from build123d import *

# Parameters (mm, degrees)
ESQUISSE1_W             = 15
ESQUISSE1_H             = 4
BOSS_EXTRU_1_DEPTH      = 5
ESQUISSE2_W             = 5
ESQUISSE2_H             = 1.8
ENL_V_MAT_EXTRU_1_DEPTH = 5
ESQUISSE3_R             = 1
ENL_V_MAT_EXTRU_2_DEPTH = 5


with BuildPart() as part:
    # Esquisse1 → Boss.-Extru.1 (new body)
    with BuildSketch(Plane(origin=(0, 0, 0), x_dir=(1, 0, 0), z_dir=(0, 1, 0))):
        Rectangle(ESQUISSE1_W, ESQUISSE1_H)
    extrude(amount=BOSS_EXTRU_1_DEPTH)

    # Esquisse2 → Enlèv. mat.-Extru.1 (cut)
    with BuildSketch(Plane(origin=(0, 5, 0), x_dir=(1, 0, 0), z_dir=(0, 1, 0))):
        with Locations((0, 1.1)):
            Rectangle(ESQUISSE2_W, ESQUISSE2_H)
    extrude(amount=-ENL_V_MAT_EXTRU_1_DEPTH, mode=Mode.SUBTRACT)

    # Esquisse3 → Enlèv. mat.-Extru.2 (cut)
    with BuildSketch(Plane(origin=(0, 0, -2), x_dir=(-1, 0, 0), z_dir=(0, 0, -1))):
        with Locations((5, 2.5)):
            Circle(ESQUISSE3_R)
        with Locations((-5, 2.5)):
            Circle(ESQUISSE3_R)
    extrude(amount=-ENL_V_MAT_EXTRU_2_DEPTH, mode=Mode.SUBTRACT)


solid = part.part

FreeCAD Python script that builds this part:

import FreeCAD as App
import Part
import Sketcher

V = App.Vector

doc = App.newDocument("Part")
body = doc.addObject("PartDesign::Body", "Body")

# Sketch on XZ plane
sketch1 = body.newObject("Sketcher::SketchObject", "Sketch")
sketch1.AttachmentSupport = (doc.getObject("XZ_Plane"), [""])
sketch1.MapMode = "FlatFace"
sketch1.addGeometry(Part.LineSegment(V(-7.5, -2, 0), V(-7.5, 2, 0)), False)
sketch1.addGeometry(Part.LineSegment(V(-7.5, 2, 0), V(7.5, 2, 0)), False)
sketch1.addGeometry(Part.LineSegment(V(7.5, 2, 0), V(7.5, -2, 0)), False)
sketch1.addGeometry(Part.LineSegment(V(7.5, -2, 0), V(-7.5, -2, 0)), False)
sketch1.addConstraint(Sketcher.Constraint("Coincident", 0, 2, 1, 1))
sketch1.addConstraint(Sketcher.Constraint("Coincident", 1, 2, 2, 1))
sketch1.addConstraint(Sketcher.Constraint("Coincident", 2, 2, 3, 1))
sketch1.addConstraint(Sketcher.Constraint("Coincident", 3, 2, 0, 1))
sketch1.addConstraint(Sketcher.Constraint("Vertical", 0))
sketch1.addConstraint(Sketcher.Constraint("Horizontal", 1))
sketch1.addConstraint(Sketcher.Constraint("Vertical", 2))
sketch1.addConstraint(Sketcher.Constraint("Horizontal", 3))
sketch1.addConstraint(Sketcher.Constraint("Symmetric", 0, 2, 2, 2, -1, 1))
sketch1.addConstraint(Sketcher.Constraint("DistanceX", 1, 1, 1, 2, 15.0))
sketch1.addConstraint(Sketcher.Constraint("DistanceY", 0, 1, 0, 2, 4.0))
pad1 = body.newObject("PartDesign::Pad", "Pad")
pad1.Profile = sketch1
pad1.Length = 5
pad1.Reversed = True

# Sketch on XZ plane
sketch2 = body.newObject("Sketcher::SketchObject", "Sketch001")
sketch2.AttachmentSupport = (doc.getObject("XZ_Plane"), [""])
sketch2.MapMode = "FlatFace"
sketch2.AttachmentOffset = App.Placement(V(0, 0, -5), App.Rotation())
sketch2.addGeometry(Part.LineSegment(V(-2.5, -2, 0), V(-2.5, -0.2, 0)), False)
sketch2.addGeometry(Part.LineSegment(V(-2.5, -0.2, 0), V(2.5, -0.2, 0)), False)
sketch2.addGeometry(Part.LineSegment(V(2.5, -0.2, 0), V(2.5, -2, 0)), False)
sketch2.addGeometry(Part.LineSegment(V(2.5, -2, 0), V(-2.5, -2, 0)), False)
sketch2.addConstraint(Sketcher.Constraint("Coincident", 0, 2, 1, 1))
sketch2.addConstraint(Sketcher.Constraint("Coincident", 1, 2, 2, 1))
sketch2.addConstraint(Sketcher.Constraint("Coincident", 2, 2, 3, 1))
sketch2.addConstraint(Sketcher.Constraint("Coincident", 3, 2, 0, 1))
sketch2.addConstraint(Sketcher.Constraint("Vertical", 0))
sketch2.addConstraint(Sketcher.Constraint("Horizontal", 1))
sketch2.addConstraint(Sketcher.Constraint("Vertical", 2))
sketch2.addConstraint(Sketcher.Constraint("Horizontal", 3))
sketch2.addConstraint(Sketcher.Constraint("DistanceX", 1, 1, 1, 2, 5.0))
sketch2.addConstraint(Sketcher.Constraint("DistanceY", 0, 1, 0, 2, 1.8))
sketch2.addConstraint(Sketcher.Constraint("DistanceY", 2, 2, -1, 1, 2.0))
sketch2.addConstraint(Sketcher.Constraint("DistanceX", 0, 2, -1, 1, 2.5))
pocket1 = body.newObject("PartDesign::Pocket", "Pocket")
pocket1.Profile = sketch2
pocket1.Length = 5
pocket1.Reversed = True

# Sketch on XY plane
sketch3 = body.newObject("Sketcher::SketchObject", "Sketch002")
sketch3.AttachmentSupport = (doc.getObject("XY_Plane"), [""])
sketch3.MapMode = "FlatFace"
sketch3.AttachmentOffset = App.Placement(V(0, 0, -2), App.Rotation())
sketch3.addGeometry(Part.Circle(V(-5, 2.5, 0), V(0, 0, 1), 1), False)
sketch3.addGeometry(Part.Circle(V(5, 2.5, 0), V(0, 0, 1), 1), False)
sketch3.addConstraint(Sketcher.Constraint("Equal", 0, 1))
sketch3.addConstraint(Sketcher.Constraint("Symmetric", 0, 3, 1, 3, -2))
sketch3.addConstraint(Sketcher.Constraint("Diameter", 0, 2.0))
sketch3.addConstraint(Sketcher.Constraint("DistanceX", 0, 3, -1, 1, 5.0))
sketch3.addConstraint(Sketcher.Constraint("DistanceY", -1, 1, 0, 3, 2.5))
pocket2 = body.newObject("PartDesign::Pocket", "Pocket001")
pocket2.Profile = sketch3
pocket2.Length = 5
pocket2.Reversed = True

doc.recompute()
